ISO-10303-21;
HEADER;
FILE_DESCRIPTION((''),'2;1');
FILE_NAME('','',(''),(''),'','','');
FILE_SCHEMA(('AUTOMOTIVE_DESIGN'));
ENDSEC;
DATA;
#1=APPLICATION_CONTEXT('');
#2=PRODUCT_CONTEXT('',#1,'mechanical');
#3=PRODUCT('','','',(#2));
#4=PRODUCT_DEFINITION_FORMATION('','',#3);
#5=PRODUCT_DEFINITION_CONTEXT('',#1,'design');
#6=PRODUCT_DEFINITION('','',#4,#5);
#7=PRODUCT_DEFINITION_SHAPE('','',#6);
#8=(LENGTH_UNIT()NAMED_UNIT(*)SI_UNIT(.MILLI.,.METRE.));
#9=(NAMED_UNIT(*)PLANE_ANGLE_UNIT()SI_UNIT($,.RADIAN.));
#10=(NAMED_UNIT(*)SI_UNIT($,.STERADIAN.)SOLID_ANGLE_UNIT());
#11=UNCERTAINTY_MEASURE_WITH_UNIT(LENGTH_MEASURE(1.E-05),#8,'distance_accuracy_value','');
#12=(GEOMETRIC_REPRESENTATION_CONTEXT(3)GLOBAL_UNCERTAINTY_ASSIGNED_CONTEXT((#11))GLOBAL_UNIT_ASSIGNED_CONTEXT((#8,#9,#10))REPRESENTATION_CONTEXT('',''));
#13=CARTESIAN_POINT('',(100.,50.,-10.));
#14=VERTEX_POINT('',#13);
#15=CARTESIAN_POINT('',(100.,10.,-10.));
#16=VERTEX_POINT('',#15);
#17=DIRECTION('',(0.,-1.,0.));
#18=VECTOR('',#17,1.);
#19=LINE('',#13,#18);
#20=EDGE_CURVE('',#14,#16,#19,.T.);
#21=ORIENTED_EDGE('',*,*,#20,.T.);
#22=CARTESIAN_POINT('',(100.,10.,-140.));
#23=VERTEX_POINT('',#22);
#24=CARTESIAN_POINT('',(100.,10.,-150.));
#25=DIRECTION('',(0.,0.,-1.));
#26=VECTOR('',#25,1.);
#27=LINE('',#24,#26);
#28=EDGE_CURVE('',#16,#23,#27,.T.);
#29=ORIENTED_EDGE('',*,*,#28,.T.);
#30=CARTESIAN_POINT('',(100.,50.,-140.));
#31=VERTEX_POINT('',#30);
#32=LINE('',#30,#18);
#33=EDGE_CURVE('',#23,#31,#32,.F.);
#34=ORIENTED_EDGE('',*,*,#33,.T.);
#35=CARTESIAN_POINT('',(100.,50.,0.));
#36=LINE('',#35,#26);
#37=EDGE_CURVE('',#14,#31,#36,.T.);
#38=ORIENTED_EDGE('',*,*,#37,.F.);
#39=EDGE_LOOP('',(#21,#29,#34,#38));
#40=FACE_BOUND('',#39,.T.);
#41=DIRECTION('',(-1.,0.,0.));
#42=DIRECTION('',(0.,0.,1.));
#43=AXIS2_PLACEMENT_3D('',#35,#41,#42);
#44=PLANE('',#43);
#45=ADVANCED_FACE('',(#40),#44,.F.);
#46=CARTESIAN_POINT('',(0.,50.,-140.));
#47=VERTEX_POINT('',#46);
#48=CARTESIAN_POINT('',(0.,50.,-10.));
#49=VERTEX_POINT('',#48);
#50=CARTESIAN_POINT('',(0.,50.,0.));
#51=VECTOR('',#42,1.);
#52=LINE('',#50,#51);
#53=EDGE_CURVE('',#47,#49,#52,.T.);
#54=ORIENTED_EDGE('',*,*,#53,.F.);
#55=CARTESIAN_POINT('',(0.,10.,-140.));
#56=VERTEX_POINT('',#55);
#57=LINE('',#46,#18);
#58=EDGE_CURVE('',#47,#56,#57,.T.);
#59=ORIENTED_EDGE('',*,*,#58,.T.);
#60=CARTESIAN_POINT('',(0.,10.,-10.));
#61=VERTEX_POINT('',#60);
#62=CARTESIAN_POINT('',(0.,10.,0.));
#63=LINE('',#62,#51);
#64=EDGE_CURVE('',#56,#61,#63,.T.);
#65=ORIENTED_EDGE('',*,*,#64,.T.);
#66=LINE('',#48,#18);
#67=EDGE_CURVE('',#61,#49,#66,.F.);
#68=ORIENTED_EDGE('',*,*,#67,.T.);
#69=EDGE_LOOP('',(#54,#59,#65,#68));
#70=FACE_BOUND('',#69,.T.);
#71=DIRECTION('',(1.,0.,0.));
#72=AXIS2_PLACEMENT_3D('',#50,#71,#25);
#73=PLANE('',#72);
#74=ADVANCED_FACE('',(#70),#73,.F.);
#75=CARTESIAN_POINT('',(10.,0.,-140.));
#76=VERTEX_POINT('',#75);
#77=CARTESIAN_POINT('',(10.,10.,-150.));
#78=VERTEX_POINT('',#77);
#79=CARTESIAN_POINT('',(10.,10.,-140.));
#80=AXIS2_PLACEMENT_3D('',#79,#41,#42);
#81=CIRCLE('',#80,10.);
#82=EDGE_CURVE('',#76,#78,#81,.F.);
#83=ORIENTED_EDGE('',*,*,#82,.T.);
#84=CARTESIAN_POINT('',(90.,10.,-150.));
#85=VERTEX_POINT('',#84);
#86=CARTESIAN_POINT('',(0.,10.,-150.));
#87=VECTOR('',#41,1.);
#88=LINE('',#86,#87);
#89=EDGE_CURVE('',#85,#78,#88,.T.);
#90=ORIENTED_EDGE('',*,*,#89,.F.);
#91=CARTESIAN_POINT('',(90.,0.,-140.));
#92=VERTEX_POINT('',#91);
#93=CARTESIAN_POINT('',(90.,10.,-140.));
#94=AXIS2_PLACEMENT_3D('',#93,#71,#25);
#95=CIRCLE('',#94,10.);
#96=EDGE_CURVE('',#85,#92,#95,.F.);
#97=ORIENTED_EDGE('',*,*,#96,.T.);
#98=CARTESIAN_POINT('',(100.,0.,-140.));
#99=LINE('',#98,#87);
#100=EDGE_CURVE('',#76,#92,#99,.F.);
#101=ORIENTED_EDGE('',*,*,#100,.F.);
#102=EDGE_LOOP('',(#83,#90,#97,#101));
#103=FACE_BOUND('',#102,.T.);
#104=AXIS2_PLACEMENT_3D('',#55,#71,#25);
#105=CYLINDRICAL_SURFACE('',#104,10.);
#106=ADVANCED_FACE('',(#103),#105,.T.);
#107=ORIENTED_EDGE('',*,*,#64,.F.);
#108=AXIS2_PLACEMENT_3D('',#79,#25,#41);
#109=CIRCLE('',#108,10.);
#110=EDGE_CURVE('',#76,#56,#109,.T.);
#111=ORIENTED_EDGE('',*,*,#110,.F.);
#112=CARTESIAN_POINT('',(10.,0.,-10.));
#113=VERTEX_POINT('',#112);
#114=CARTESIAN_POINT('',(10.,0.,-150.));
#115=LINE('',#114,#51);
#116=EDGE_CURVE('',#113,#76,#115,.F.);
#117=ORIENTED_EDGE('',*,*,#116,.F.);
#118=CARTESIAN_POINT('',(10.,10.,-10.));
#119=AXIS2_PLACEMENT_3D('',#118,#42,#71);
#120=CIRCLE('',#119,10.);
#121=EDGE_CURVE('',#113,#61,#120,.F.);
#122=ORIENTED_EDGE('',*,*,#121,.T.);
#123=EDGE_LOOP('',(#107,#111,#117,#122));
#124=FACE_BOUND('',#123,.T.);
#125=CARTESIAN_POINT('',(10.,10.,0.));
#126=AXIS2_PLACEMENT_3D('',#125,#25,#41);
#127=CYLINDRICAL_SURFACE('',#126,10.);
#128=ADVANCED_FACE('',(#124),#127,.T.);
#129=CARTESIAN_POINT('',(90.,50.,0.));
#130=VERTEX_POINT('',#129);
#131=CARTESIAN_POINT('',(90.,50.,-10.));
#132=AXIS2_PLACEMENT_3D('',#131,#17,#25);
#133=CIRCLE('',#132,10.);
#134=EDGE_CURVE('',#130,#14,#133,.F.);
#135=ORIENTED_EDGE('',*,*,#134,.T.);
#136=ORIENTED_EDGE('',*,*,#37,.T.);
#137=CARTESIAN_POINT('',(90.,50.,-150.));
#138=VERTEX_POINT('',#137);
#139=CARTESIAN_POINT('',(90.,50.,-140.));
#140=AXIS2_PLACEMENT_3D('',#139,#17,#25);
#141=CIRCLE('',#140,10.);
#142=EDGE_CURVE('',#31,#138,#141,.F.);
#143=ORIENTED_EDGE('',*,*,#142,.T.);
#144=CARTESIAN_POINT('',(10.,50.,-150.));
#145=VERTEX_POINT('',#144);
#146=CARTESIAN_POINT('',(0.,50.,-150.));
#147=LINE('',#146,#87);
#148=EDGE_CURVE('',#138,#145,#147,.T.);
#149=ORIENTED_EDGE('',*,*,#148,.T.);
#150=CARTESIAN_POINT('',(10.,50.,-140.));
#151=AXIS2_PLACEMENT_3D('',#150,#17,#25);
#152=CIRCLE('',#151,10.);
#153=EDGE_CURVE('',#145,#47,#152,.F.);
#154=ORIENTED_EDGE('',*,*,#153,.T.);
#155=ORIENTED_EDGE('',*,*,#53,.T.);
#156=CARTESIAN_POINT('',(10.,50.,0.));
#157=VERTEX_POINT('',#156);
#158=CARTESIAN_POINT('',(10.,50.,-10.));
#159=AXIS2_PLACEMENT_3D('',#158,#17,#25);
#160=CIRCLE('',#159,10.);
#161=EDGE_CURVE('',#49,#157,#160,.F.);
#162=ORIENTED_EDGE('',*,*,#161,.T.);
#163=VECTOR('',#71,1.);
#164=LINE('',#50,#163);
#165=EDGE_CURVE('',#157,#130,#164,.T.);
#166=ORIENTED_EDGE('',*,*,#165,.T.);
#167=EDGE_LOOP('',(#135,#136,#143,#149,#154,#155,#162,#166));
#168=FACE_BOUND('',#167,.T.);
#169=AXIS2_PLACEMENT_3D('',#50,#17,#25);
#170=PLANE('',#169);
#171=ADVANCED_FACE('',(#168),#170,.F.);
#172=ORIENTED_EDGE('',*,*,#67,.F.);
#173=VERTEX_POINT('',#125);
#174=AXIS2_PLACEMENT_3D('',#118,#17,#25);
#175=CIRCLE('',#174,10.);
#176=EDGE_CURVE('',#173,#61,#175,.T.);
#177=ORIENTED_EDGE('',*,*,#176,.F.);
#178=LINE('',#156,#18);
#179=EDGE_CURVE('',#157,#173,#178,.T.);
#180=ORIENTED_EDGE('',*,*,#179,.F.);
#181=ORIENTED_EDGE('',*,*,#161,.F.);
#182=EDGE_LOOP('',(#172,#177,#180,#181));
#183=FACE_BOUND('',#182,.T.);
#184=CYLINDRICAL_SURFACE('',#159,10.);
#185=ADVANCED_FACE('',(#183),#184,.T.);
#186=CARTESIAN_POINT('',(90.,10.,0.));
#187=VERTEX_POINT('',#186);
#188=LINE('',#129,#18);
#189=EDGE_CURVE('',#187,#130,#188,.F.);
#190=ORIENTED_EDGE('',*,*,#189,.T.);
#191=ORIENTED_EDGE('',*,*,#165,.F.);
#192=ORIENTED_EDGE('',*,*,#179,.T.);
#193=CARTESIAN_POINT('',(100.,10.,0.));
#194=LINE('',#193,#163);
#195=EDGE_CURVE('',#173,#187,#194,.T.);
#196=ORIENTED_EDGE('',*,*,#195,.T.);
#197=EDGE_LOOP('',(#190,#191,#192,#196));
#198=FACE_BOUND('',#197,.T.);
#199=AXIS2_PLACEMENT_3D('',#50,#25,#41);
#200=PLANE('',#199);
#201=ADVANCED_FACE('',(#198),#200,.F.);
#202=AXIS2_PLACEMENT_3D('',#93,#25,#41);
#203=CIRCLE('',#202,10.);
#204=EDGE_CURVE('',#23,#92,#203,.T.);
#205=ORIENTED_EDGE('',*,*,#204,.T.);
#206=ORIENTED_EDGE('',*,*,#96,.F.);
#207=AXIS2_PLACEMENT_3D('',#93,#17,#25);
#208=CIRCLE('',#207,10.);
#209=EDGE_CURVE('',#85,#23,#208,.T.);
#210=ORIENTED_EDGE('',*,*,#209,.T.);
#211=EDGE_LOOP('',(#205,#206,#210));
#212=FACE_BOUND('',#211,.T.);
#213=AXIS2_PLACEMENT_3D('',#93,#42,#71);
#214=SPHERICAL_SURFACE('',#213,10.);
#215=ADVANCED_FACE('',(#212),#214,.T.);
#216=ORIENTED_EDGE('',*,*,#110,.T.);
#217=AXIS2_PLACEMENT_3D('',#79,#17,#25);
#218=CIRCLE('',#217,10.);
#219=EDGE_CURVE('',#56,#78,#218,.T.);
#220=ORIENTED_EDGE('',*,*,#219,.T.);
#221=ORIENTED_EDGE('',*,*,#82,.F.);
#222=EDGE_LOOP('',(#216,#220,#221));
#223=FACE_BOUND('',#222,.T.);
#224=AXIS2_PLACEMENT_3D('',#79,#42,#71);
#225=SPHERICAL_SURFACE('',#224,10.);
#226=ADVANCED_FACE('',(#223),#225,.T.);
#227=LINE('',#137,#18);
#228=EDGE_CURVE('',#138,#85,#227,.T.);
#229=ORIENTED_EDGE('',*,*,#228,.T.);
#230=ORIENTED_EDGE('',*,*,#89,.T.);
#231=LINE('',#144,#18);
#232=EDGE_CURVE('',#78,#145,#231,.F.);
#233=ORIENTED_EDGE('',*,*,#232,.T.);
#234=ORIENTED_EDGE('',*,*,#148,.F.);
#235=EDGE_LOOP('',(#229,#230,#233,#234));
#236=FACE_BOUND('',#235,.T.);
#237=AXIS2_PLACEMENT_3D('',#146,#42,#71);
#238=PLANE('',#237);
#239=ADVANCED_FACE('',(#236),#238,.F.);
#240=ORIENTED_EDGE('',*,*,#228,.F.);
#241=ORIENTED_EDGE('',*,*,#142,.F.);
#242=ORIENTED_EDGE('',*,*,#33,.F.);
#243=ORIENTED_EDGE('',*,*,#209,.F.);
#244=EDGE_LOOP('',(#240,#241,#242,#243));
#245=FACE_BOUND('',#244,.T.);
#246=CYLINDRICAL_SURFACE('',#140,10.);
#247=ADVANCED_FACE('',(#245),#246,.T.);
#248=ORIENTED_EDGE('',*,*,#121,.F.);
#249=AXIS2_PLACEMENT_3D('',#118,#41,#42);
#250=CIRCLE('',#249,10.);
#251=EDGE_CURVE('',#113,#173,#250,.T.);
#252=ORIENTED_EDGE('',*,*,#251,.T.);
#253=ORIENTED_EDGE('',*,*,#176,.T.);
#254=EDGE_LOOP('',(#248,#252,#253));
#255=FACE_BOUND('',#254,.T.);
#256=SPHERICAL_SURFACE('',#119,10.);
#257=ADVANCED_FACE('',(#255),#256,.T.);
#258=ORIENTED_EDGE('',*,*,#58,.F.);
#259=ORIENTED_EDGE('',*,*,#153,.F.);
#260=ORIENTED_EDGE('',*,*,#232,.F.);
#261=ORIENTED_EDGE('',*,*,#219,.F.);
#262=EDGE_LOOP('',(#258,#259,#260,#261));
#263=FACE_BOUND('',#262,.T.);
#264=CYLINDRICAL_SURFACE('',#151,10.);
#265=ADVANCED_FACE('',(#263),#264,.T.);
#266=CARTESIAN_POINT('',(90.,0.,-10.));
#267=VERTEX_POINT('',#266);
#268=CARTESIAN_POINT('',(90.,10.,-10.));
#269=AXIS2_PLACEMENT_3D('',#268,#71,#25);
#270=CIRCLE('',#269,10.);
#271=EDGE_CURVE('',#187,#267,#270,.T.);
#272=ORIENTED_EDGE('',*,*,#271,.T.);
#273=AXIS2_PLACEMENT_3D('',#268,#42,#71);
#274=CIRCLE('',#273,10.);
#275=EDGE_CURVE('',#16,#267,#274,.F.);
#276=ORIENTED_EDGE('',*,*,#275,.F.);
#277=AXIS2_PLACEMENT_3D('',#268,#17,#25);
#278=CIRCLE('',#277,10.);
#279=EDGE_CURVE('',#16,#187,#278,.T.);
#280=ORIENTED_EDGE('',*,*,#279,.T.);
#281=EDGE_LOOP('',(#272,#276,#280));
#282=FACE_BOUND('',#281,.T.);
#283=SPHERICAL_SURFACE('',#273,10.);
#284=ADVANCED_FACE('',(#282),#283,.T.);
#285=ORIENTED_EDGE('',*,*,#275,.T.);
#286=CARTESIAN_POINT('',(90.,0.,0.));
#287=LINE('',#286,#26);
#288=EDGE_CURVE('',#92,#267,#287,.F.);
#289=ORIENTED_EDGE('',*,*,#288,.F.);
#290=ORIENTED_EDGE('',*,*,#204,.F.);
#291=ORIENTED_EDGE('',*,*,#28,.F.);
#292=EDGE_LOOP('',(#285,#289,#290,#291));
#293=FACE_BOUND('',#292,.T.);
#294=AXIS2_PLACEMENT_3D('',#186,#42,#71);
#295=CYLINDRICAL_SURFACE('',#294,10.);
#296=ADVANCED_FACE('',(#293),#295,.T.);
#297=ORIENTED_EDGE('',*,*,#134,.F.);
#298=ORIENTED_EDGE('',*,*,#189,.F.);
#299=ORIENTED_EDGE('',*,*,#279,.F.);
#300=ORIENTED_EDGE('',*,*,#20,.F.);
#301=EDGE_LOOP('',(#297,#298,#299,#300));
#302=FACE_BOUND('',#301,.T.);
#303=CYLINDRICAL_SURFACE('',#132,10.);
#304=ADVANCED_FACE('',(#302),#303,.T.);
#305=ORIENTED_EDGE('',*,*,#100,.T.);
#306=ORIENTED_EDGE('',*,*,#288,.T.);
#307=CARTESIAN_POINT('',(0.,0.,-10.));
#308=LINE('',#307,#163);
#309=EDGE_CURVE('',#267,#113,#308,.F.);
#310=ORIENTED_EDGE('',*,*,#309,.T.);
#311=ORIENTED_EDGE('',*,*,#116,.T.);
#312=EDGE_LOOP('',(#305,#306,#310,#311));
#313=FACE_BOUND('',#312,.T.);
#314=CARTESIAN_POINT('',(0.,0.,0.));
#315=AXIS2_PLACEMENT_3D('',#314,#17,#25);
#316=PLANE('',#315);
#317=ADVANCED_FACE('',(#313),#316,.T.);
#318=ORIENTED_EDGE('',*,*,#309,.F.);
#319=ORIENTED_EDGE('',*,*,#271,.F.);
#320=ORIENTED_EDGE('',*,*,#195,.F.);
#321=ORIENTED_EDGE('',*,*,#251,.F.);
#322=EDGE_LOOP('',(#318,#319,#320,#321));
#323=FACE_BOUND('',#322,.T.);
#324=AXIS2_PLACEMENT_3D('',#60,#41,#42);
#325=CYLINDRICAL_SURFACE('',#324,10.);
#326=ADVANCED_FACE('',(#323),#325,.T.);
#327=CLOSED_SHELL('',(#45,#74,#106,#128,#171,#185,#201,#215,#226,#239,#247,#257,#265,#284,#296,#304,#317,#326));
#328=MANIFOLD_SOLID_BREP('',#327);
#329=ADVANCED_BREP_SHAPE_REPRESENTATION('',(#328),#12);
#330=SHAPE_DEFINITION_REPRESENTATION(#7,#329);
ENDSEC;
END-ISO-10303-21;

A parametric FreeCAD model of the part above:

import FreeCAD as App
import Part
import Sketcher

V = App.Vector


def edges_at(feature, points):
    """Names of the edges that pass closest to the given points."""
    edges = feature.Shape.Edges
    near = lambda p: min(range(len(edges)), key=lambda i: edges[i].distToShape(Part.Vertex(*p))[0])
    return sorted({f"Edge{near(p) + 1}" for p in points})


def add_polygon(sketch, points):
    """Adds a closed chain of lines whose ends are joined by coincident constraints."""
    first, n = sketch.GeometryCount, len(points)
    for a, b in zip(points, points[1:] + points[:1]):
        sketch.addGeometry(Part.LineSegment(App.Vector(*a, 0), App.Vector(*b, 0)), False)
    for i in range(n):
        sketch.addConstraint(Sketcher.Constraint("Coincident", first + i, 2, first + (i + 1) % n, 1))

doc = App.newDocument("Part")
body = doc.addObject("PartDesign::Body", "Body")

# Sketch on XZ plane
sketch1 = body.newObject("Sketcher::SketchObject", "Sketch")
sketch1.AttachmentSupport = (doc.getObject("XZ_Plane"), [""])
sketch1.MapMode = "FlatFace"
add_polygon(sketch1, [(0, -150), (0, 0), (100, 0), (100, -150)])  # lines 0-3
sketch1.addConstraint([
    Sketcher.Constraint("Vertical", 0),
    Sketcher.Constraint("Horizontal", 1),
    Sketcher.Constraint("Vertical", 2),
    Sketcher.Constraint("Horizontal", 3),
    Sketcher.Constraint("Coincident", 0, 2, -1, 1),
    Sketcher.Constraint("DistanceX", 1, 1, 1, 2, 100.0),
    Sketcher.Constraint("DistanceY", 0, 1, 0, 2, 150.0),
])
pad1 = body.newObject("PartDesign::Pad", "Pad")
pad1.Profile = sketch1
pad1.Length = 50
pad1.Reversed = True
doc.recompute()

fillet = body.newObject("PartDesign::Fillet", "Fillet")
fillet.Base = (pad1, edges_at(pad1, [
    (50, 0, -150),
    (100, 0, -75),
    (50, 0, 0),
    (0, 0, -75),
    (0, 25, -150),
    (100, 25, -150),
    (100, 25, 0),
    (0, 25, 0),
]))
fillet.Radius = 10

doc.recompute()
